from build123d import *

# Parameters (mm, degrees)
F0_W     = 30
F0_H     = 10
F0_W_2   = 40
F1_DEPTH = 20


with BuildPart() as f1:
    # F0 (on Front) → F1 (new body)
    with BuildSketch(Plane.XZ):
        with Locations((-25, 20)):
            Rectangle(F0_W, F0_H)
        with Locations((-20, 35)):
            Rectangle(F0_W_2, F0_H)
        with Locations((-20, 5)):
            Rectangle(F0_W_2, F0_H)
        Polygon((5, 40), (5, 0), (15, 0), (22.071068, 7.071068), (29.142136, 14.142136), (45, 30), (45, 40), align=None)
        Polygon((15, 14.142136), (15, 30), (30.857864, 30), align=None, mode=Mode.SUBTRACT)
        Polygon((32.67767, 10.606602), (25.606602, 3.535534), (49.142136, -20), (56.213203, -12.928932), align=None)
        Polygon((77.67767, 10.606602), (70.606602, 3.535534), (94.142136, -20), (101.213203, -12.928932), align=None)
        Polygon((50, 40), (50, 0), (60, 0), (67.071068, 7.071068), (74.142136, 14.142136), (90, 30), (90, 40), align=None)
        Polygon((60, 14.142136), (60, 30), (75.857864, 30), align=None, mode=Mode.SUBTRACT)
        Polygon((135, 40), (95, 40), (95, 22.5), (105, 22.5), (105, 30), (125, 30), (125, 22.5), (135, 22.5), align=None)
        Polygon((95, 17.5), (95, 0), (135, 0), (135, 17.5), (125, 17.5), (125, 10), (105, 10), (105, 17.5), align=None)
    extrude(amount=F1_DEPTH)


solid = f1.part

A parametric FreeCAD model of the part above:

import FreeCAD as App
import Part
import Sketcher

V = App.Vector
Q = App.Units.Quantity

doc = App.newDocument("Part")
body = doc.addObject("PartDesign::Body", "Body")
body.AllowCompound = True

# Sketch on XZ plane
sketch1 = doc.addObject("Sketcher::SketchObject", "Sketch")
body.addObject(sketch1)
sketch1.AttachmentSupport = (doc.XZ_Plane, [""])
sketch1.MapMode = "FlatFace"
sketch1.addGeometry(Part.LineSegment(V(-40, 25, 0), V(-40, 15, 0)), False)
sketch1.addGeometry(Part.LineSegment(V(-40, 15, 0), V(-10, 15, 0)), False)
sketch1.addGeometry(Part.LineSegment(V(-10, 15, 0), V(-10, 25, 0)), False)
sketch1.addGeometry(Part.LineSegment(V(-10, 25, 0), V(-40, 25, 0)), False)
sketch1.addGeometry(Part.LineSegment(V(-40, 40, 0), V(-40, 30, 0)), False)
sketch1.addGeometry(Part.LineSegment(V(-40, 30, 0), V(0, 30, 0)), False)
sketch1.addGeometry(Part.LineSegment(V(0, 30, 0), V(0, 40, 0)), False)
sketch1.addGeometry(Part.LineSegment(V(0, 40, 0), V(-40, 40, 0)), False)
sketch1.addGeometry(Part.LineSegment(V(-40, 10, 0), V(-40, 0, 0)), False)
sketch1.addGeometry(Part.LineSegment(V(-40, 0, 0), V(0, 0, 0)), False)
sketch1.addGeometry(Part.LineSegment(V(0, 0, 0), V(0, 10, 0)), False)
sketch1.addGeometry(Part.LineSegment(V(0, 10, 0), V(-40, 10, 0)), False)
sketch1.addGeometry(Part.LineSegment(V(5, 40, 0), V(5, 0, 0)), False)
sketch1.addGeometry(Part.LineSegment(V(5, 0, 0), V(15, 0, 0)), False)
sketch1.addGeometry(Part.LineSegment(V(15, 0, 0), V(45, 30, 0)), False)
sketch1.addGeometry(Part.LineSegment(V(45, 30, 0), V(45, 40, 0)), False)
sketch1.addGeometry(Part.LineSegment(V(45, 40, 0), V(5, 40, 0)), False)
sketch1.addGeometry(Part.LineSegment(V(31, 30, 0), V(15, 14, 0)), False)
sketch1.addGeometry(Part.LineSegment(V(15, 14, 0), V(15, 30, 0)), False)
sketch1.addGeometry(Part.LineSegment(V(15, 30, 0), V(31, 30, 0)), False)
sketch1.addGeometry(Part.LineSegment(V(33, 11, 0), V(26, 4, 0)), False)
sketch1.addGeometry(Part.LineSegment(V(26, 4, 0), V(49, -20, 0)), False)
sketch1.addGeometry(Part.LineSegment(V(49, -20, 0), V(56, -13, 0)), False)
sketch1.addGeometry(Part.LineSegment(V(56, -13, 0), V(33, 11, 0)), False)
sketch1.addGeometry(Part.LineSegment(V(78, 11, 0), V(71, 4, 0)), False)
sketch1.addGeometry(Part.LineSegment(V(71, 4, 0), V(94, -20, 0)), False)
sketch1.addGeometry(Part.LineSegment(V(94, -20, 0), V(101, -13, 0)), False)
sketch1.addGeometry(Part.LineSegment(V(101, -13, 0), V(78, 11, 0)), False)
sketch1.addGeometry(Part.LineSegment(V(50, 40, 0), V(50, 0, 0)), False)
sketch1.addGeometry(Part.LineSegment(V(50, 0, 0), V(60, 0, 0)), False)
sketch1.addGeometry(Part.LineSegment(V(60, 0, 0), V(90, 30, 0)), False)
sketch1.addGeometry(Part.LineSegment(V(90, 30, 0), V(90, 40, 0)), False)
sketch1.addGeometry(Part.LineSegment(V(90, 40, 0), V(50, 40, 0)), False)
sketch1.addGeometry(Part.LineSegment(V(76, 30, 0), V(60, 14, 0)), False)
sketch1.addGeometry(Part.LineSegment(V(60, 14, 0), V(60, 30, 0)), False)
sketch1.addGeometry(Part.LineSegment(V(60, 30, 0), V(76, 30, 0)), False)
sketch1.addGeometry(Part.LineSegment(V(135, 40, 0), V(95, 40, 0)), False)
sketch1.addGeometry(Part.LineSegment(V(95, 40, 0), V(95, 22, 0)), False)
sketch1.addGeometry(Part.LineSegment(V(95, 22, 0), V(105, 22, 0)), False)
sketch1.addGeometry(Part.LineSegment(V(105, 22, 0), V(105, 30, 0)), False)
sketch1.addGeometry(Part.LineSegment(V(105, 30, 0), V(125, 30, 0)), False)
sketch1.addGeometry(Part.LineSegment(V(125, 30, 0), V(125, 22, 0)), False)
sketch1.addGeometry(Part.LineSegment(V(125, 22, 0), V(135, 22, 0)), False)
sketch1.addGeometry(Part.LineSegment(V(135, 22, 0), V(135, 40, 0)), False)
sketch1.addGeometry(Part.LineSegment(V(95, 18, 0), V(95, 0, 0)), False)
sketch1.addGeometry(Part.LineSegment(V(95, 0, 0), V(135, 0, 0)), False)
sketch1.addGeometry(Part.LineSegment(V(135, 0, 0), V(135, 18, 0)), False)
sketch1.addGeometry(Part.LineSegment(V(135, 18, 0), V(125, 18, 0)), False)
sketch1.addGeometry(Part.LineSegment(V(125, 18, 0), V(125, 10, 0)), False)
sketch1.addGeometry(Part.LineSegment(V(125, 10, 0), V(105, 10, 0)), False)
sketch1.addGeometry(Part.LineSegment(V(105, 10, 0), V(105, 18, 0)), False)
sketch1.addGeometry(Part.LineSegment(V(105, 18, 0), V(95, 18, 0)), False)
sketch1.addConstraint(Sketcher.Constraint("Coincident", 0, 2, 1, 1))
sketch1.addConstraint(Sketcher.Constraint("Coincident", 1, 2, 2, 1))
sketch1.addConstraint(Sketcher.Constraint("Coincident", 2, 2, 3, 1))
sketch1.addConstraint(Sketcher.Constraint("Coincident", 3, 2, 0, 1))
sketch1.addConstraint(Sketcher.Constraint("Coincident", 4, 2, 5, 1))
sketch1.addConstraint(Sketcher.Constraint("Coincident", 5, 2, 6, 1))
sketch1.addConstraint(Sketcher.Constraint("Coincident", 6, 2, 7, 1))
sketch1.addConstraint(Sketcher.Constraint("Coincident", 7, 2, 4, 1))
sketch1.addConstraint(Sketcher.Constraint("Coincident", 8, 2, 9, 1))
sketch1.addConstraint(Sketcher.Constraint("Coincident", 9, 2, 10, 1))
sketch1.addConstraint(Sketcher.Constraint("Coincident", 10, 2, 11, 1))
sketch1.addConstraint(Sketcher.Constraint("Coincident", 11, 2, 8, 1))
sketch1.addConstraint(Sketcher.Constraint("Coincident", 12, 2, 13, 1))
sketch1.addConstraint(Sketcher.Constraint("Coincident", 13, 2, 14, 1))
sketch1.addConstraint(Sketcher.Constraint("Coincident", 14, 2, 15, 1))
sketch1.addConstraint(Sketcher.Constraint("Coincident", 15, 2, 16, 1))
sketch1.addConstraint(Sketcher.Constraint("Coincident", 16, 2, 12, 1))
sketch1.addConstraint(Sketcher.Constraint("Coincident", 17, 2, 18, 1))
sketch1.addConstraint(Sketcher.Constraint("Coincident", 18, 2, 19, 1))
sketch1.addConstraint(Sketcher.Constraint("Coincident", 19, 2, 17, 1))
sketch1.addConstraint(Sketcher.Constraint("Coincident", 20, 2, 21, 1))
sketch1.addConstraint(Sketcher.Constraint("Coincident", 21, 2, 22, 1))
sketch1.addConstraint(Sketcher.Constraint("Coincident", 22, 2, 23, 1))
sketch1.addConstraint(Sketcher.Constraint("Coincident", 23, 2, 20, 1))
sketch1.addConstraint(Sketcher.Constraint("Coincident", 24, 2, 25, 1))
sketch1.addConstraint(Sketcher.Constraint("Coincident", 25, 2, 26, 1))
sketch1.addConstraint(Sketcher.Constraint("Coincident", 26, 2, 27, 1))
sketch1.addConstraint(Sketcher.Constraint("Coincident", 27, 2, 24, 1))
sketch1.addConstraint(Sketcher.Constraint("Coincident", 28, 2, 29, 1))
sketch1.addConstraint(Sketcher.Constraint("Coincident", 29, 2, 30, 1))
sketch1.addConstraint(Sketcher.Constraint("Coincident", 30, 2, 31, 1))
sketch1.addConstraint(Sketcher.Constraint("Coincident", 31, 2, 32, 1))
sketch1.addConstraint(Sketcher.Constraint("Coincident", 32, 2, 28, 1))
sketch1.addConstraint(Sketcher.Constraint("Coincident", 33, 2, 34, 1))
sketch1.addConstraint(Sketcher.Constraint("Coincident", 34, 2, 35, 1))
sketch1.addConstraint(Sketcher.Constraint("Coincident", 35, 2, 33, 1))
sketch1.addConstraint(Sketcher.Constraint("Coincident", 36, 2, 37, 1))
sketch1.addConstraint(Sketcher.Constraint("Coincident", 37, 2, 38, 1))
sketch1.addConstraint(Sketcher.Constraint("Coincident", 38, 2, 39, 1))
sketch1.addConstraint(Sketcher.Constraint("Coincident", 39, 2, 40, 1))
sketch1.addConstraint(Sketcher.Constraint("Coincident", 40, 2, 41, 1))
sketch1.addConstraint(Sketcher.Constraint("Coincident", 41, 2, 42, 1))
sketch1.addConstraint(Sketcher.Constraint("Coincident", 42, 2, 43, 1))
sketch1.addConstraint(Sketcher.Constraint("Coincident", 43, 2, 36, 1))
sketch1.addConstraint(Sketcher.Constraint("Coincident", 44, 2, 45, 1))
sketch1.addConstraint(Sketcher.Constraint("Coincident", 45, 2, 46, 1))
sketch1.addConstraint(Sketcher.Constraint("Coincident", 46, 2, 47, 1))
sketch1.addConstraint(Sketcher.Constraint("Coincident", 47, 2, 48, 1))
sketch1.addConstraint(Sketcher.Constraint("Coincident", 48, 2, 49, 1))
sketch1.addConstraint(Sketcher.Constraint("Coincident", 49, 2, 50, 1))
sketch1.addConstraint(Sketcher.Constraint("Coincident", 50, 2, 51, 1))
sketch1.addConstraint(Sketcher.Constraint("Coincident", 51, 2, 44, 1))
sketch1.addConstraint(Sketcher.Constraint("Vertical", 0))
sketch1.addConstraint(Sketcher.Constraint("Horizontal", 1))
sketch1.addConstraint(Sketcher.Constraint("Vertical", 2))
sketch1.addConstraint(Sketcher.Constraint("Horizontal", 3))
sketch1.addConstraint(Sketcher.Constraint("Vertical", 4))
sketch1.addConstraint(Sketcher.Constraint("Horizontal", 5))
sketch1.addConstraint(Sketcher.Constraint("Vertical", 6))
sketch1.addConstraint(Sketcher.Constraint("Horizontal", 7))
sketch1.addConstraint(Sketcher.Constraint("Vertical", 8))
sketch1.addConstraint(Sketcher.Constraint("Horizontal", 9))
sketch1.addConstraint(Sketcher.Constraint("Vertical", 10))
sketch1.addConstraint(Sketcher.Constraint("Horizontal", 11))
sketch1.addConstraint(Sketcher.Constraint("Vertical", 12))
sketch1.addConstraint(Sketcher.Constraint("Horizontal", 13))
sketch1.addConstraint(Sketcher.Constraint("Vertical", 15))
sketch1.addConstraint(Sketcher.Constraint("Horizontal", 16))
sketch1.addConstraint(Sketcher.Constraint("Vertical", 18))
sketch1.addConstraint(Sketcher.Constraint("Horizontal", 19))
sketch1.addConstraint(Sketcher.Constraint("Vertical", 28))
sketch1.addConstraint(Sketcher.Constraint("Horizontal", 29))
sketch1.addConstraint(Sketcher.Constraint("Vertical", 31))
sketch1.addConstraint(Sketcher.Constraint("Horizontal", 32))
sketch1.addConstraint(Sketcher.Constraint("Vertical", 34))
sketch1.addConstraint(Sketcher.Constraint("Horizontal", 35))
sketch1.addConstraint(Sketcher.Constraint("Horizontal", 36))
sketch1.addConstraint(Sketcher.Constraint("Vertical", 37))
sketch1.addConstraint(Sketcher.Constraint("Horizontal", 38))
sketch1.addConstraint(Sketcher.Constraint("Vertical", 39))
sketch1.addConstraint(Sketcher.Constraint("Horizontal", 40))
sketch1.addConstraint(Sketcher.Constraint("Vertical", 41))
sketch1.addConstraint(Sketcher.Constraint("Horizontal", 42))
sketch1.addConstraint(Sketcher.Constraint("Vertical", 43))
sketch1.addConstraint(Sketcher.Constraint("Vertical", 44))
sketch1.addConstraint(Sketcher.Constraint("Horizontal", 45))
sketch1.addConstraint(Sketcher.Constraint("Vertical", 46))
sketch1.addConstraint(Sketcher.Constraint("Horizontal", 47))
sketch1.addConstraint(Sketcher.Constraint("Vertical", 48))
sketch1.addConstraint(Sketcher.Constraint("Horizontal", 49))
sketch1.addConstraint(Sketcher.Constraint("Vertical", 50))
sketch1.addConstraint(Sketcher.Constraint("Horizontal", 51))
sketch1.addConstraint(Sketcher.Constraint("Coincident", 9, 2, -1, 1))
sketch1.addConstraint(Sketcher.Constraint("PointOnObject", 5, 2, -2))
sketch1.addConstraint(Sketcher.Constraint("PointOnObject", 12, 2, -1))
sketch1.addConstraint(Sketcher.Constraint("PointOnObject", 28, 2, -1))
sketch1.addConstraint(Sketcher.Constraint("PointOnObject", 44, 2, -1))
sketch1.addConstraint(Sketcher.Constraint("Parallel", 14, 17))
sketch1.addConstraint(Sketcher.Constraint("Parallel", 17, 20))
sketch1.addConstraint(Sketcher.Constraint("Perpendicular", 20, 21))
sketch1.addConstraint(Sketcher.Constraint("Perpendicular", 21, 22))
sketch1.addConstraint(Sketcher.Constraint("Perpendicular", 22, 23))
sketch1.addConstraint(Sketcher.Constraint("Perpendicular", 23, 24))
sketch1.addConstraint(Sketcher.Constraint("Perpendicular", 24, 25))
sketch1.addConstraint(Sketcher.Constraint("Perpendicular", 25, 26))
sketch1.addConstraint(Sketcher.Constraint("Perpendicular", 26, 27))
sketch1.addConstraint(Sketcher.Constraint("Perpendicular", 27, 30))
sketch1.addConstraint(Sketcher.Constraint("Parallel", 30, 33))
sketch1.addConstraint(Sketcher.Constraint("Horizontal", 5, 2, 14, 2))
sketch1.addConstraint(Sketcher.Constraint("Horizontal", 7, 2, 15, 2))
sketch1.addConstraint(Sketcher.Constraint("Horizontal", 14, 2, 18, 2))
sketch1.addConstraint(Sketcher.Constraint("Horizontal", 20, 2, 24, 2))
sketch1.addConstraint(Sketcher.Constraint("Horizontal", 21, 2, 25, 2))
sketch1.addConstraint(Sketcher.Constraint("Horizontal", 22, 2, 26, 2))
sketch1.addConstraint(Sketcher.Constraint("Horizontal", 19, 2, 30, 2))
sketch1.addConstraint(Sketcher.Constraint("Horizontal", 16, 2, 31, 2))
sketch1.addConstraint(Sketcher.Constraint("Horizontal", 17, 2, 33, 2))
sketch1.addConstraint(Sketcher.Constraint("Horizontal", 30, 2, 34, 2))
sketch1.addConstraint(Sketcher.Constraint("Horizontal", 32, 2, 36, 2))
sketch1.addConstraint(Sketcher.Constraint("Horizontal", 35, 2, 39, 2))
sketch1.addConstraint(Sketcher.Constraint("Horizontal", 38, 2, 41, 2))
sketch1.addConstraint(Sketcher.Constraint("Horizontal", 11, 2, 48, 2))
sketch1.addConstraint(Sketcher.Constraint("Horizontal", 47, 2, 50, 2))
sketch1.addConstraint(Sketcher.Constraint("Vertical", 3, 2, 4, 2))
sketch1.addConstraint(Sketcher.Constraint("Vertical", 7, 2, 8, 2))
sketch1.addConstraint(Sketcher.Constraint("Vertical", 13, 2, 17, 2))
sketch1.addConstraint(Sketcher.Constraint("Vertical", 29, 2, 33, 2))
sketch1.addConstraint(Sketcher.Constraint("Vertical", 37, 2, 44, 2))
sketch1.addConstraint(Sketcher.Constraint("Vertical", 43, 2, 45, 2))
sketch1.addConstraint(Sketcher.Constraint("Vertical", 41, 2, 47, 2))
sketch1.addConstraint(Sketcher.Constraint("Vertical", 39, 2, 49, 2))
sketch1.addConstraint(Sketcher.Constraint("Equal", 11, 16))
sketch1.addConstraint(Sketcher.Constraint("Equal", 13, 29))
sketch1.addConstraint(Sketcher.Constraint("Equal", 32, 36))
sketch1.addConstraint(Sketcher.Constraint("Equal", 29, 38))
sketch1.addConstraint(Sketcher.Constraint("Equal", 38, 42))
sketch1.addConstraint(Sketcher.Constraint("Equal", 51, 0))
sketch1.addConstraint(Sketcher.Constraint("Equal", 2, 4))
sketch1.addConstraint(Sketcher.Constraint("Equal", 6, 8))
sketch1.addConstraint(Sketcher.Constraint("Equal", 45, 12))
sketch1.addConstraint(Sketcher.Constraint("Equal", 43, 44))
sketch1.addConstraint(Sketcher.Constraint("DistanceX", 1, 1, 1, 2, Q("30 mm")))
sketch1.addConstraint(Sketcher.Constraint("DistanceX", 5, 1, 5, 2, Q("40 mm")))
sketch1.addConstraint(Sketcher.Constraint("DistanceX", 13, 1, 13, 2, Q("10 mm")))
sketch1.addConstraint(Sketcher.Constraint("Distance", 20, Q("10 mm")))
sketch1.addConstraint(Sketcher.Constraint("DistanceY", 37, 2, 37, 1, Q("17.5 mm")))
sketch1.addConstraint(Sketcher.Constraint("DistanceY", -1, 1, 0, 2, Q("15 mm")))
sketch1.addConstraint(Sketcher.Constraint("DistanceX", -1, 1, 12, 2, Q("5 mm")))
sketch1.addConstraint(Sketcher.Constraint("DistanceY", 21, 2, -1, 1, Q("20 mm")))
sketch1.addConstraint(Sketcher.Constraint("DistanceX", -1, 1, 28, 2, Q("50 mm")))
sketch1.addConstraint(Sketcher.Constraint("DistanceX", -1, 1, 36, 2, Q("95 mm")))
sketch1.addConstraint(Sketcher.Constraint("DistanceX", 21, 2, 25, 2, Q("45 mm")))
sketch1.addConstraint(Sketcher.Constraint("DistanceX", -1, 1, 20, 2, Q("25.606602 mm")))
sketch1.addConstraint(Sketcher.Constraint("DistanceX", 20, 2, 22, 2, Q("30.606601 mm")))
sketch1.addConstraint(Sketcher.Constraint("DistanceX", 19, 1, 19, 2, Q("15.857864 mm")))
pad1 = doc.addObject("PartDesign::Pad", "Pad")
body.addObject(pad1)
pad1.Profile = sketch1
pad1.Length = 20

doc.recompute()
